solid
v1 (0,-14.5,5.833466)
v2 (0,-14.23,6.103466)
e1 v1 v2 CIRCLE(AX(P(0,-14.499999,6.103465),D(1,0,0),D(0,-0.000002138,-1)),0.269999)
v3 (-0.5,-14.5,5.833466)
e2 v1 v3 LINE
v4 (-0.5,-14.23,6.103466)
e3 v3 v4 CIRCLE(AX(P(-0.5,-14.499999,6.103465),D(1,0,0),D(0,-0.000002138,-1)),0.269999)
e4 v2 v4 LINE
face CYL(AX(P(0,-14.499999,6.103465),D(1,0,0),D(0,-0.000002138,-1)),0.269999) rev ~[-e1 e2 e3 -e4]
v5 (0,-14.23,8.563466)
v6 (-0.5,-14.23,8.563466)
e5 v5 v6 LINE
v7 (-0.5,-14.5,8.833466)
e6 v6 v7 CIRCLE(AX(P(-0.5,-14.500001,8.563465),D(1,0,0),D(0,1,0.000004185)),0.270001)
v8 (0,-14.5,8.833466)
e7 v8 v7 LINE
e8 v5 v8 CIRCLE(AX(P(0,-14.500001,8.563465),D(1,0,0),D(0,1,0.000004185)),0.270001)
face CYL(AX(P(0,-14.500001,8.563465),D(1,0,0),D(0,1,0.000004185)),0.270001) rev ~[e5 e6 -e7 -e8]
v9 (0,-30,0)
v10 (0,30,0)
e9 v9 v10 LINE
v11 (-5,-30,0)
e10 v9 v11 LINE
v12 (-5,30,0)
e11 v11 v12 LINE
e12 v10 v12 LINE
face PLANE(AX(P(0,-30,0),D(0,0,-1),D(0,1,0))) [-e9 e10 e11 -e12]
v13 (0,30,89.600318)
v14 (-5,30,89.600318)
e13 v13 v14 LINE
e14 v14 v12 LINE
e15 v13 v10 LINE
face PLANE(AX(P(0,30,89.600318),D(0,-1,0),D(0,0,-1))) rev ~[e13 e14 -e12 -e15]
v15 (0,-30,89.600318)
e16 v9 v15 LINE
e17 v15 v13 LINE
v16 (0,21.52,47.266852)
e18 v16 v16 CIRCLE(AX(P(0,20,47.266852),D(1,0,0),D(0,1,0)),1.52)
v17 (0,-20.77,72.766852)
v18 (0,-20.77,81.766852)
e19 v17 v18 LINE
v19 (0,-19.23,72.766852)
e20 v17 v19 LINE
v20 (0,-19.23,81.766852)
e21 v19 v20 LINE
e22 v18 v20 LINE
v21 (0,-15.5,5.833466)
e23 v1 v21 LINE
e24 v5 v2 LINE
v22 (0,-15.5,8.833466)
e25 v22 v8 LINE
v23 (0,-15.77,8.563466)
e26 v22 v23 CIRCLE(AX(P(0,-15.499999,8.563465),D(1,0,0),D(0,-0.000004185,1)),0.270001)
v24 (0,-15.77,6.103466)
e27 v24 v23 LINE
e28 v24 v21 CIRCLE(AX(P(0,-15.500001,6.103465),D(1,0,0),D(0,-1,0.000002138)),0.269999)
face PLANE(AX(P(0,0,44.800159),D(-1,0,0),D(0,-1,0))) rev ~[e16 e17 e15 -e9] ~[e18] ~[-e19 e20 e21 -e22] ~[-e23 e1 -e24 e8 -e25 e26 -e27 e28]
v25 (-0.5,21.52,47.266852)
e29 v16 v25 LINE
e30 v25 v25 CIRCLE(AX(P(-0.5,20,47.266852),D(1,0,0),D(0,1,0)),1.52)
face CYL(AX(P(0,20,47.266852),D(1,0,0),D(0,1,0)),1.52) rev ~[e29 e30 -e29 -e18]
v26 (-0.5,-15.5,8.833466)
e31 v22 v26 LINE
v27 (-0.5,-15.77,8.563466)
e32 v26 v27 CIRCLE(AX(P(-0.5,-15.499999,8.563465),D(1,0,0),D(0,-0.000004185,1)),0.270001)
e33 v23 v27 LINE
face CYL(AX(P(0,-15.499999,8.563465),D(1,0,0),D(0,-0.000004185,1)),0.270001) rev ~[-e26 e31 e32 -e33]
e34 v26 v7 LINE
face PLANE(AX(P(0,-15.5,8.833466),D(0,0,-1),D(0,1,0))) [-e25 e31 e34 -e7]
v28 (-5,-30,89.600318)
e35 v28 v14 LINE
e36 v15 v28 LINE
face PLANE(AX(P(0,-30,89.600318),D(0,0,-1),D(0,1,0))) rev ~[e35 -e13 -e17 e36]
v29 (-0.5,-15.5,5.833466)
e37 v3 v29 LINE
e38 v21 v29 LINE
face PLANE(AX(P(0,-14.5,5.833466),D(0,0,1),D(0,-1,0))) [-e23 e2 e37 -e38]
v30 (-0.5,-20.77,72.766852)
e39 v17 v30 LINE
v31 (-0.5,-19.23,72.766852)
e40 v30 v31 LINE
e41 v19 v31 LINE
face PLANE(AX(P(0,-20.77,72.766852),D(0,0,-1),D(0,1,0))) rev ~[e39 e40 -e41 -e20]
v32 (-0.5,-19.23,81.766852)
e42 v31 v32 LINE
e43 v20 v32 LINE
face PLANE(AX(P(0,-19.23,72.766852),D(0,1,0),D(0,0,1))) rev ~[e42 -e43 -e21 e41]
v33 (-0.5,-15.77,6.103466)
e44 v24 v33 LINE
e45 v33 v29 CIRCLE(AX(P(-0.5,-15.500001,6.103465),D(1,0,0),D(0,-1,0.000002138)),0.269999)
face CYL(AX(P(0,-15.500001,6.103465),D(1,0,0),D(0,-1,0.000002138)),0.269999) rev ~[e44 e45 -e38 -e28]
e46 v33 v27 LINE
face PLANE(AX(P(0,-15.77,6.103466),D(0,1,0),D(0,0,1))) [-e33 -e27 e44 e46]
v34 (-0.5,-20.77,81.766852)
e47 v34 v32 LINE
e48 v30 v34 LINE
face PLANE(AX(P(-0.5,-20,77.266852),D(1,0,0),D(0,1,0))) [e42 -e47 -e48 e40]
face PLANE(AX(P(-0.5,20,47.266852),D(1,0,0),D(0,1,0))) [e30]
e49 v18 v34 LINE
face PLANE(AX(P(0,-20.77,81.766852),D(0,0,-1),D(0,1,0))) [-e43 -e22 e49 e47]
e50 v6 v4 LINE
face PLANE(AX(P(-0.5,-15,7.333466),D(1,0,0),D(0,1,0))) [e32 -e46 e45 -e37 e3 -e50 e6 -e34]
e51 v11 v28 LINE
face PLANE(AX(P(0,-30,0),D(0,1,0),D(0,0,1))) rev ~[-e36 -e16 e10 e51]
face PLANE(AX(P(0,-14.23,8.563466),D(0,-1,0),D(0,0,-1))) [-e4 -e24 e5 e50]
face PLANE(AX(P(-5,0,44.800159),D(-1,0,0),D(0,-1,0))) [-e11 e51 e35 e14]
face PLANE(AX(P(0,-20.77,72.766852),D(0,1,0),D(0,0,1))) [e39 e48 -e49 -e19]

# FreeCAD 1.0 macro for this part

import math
import FreeCAD as App
import Part
import Sketcher

doc = App.newDocument("Part")
body = doc.addObject("PartDesign::Body", "Body")

sketch1 = body.newObject("Sketcher::SketchObject", "Sketch")
sketch1.AttachmentSupport = (doc.getObject("YZ_Plane"), [""])
sketch1.MapMode = "FlatFace"
sketch1.addGeometry(Part.LineSegment(App.Vector(-30, 0, 0), App.Vector(30, 0, 0)), False)
sketch1.addGeometry(Part.LineSegment(App.Vector(30, 0, 0), App.Vector(30, 90, 0)), False)
sketch1.addGeometry(Part.LineSegment(App.Vector(30, 90, 0), App.Vector(-30, 90, 0)), False)
sketch1.addGeometry(Part.LineSegment(App.Vector(-30, 90, 0), App.Vector(-30, 0, 0)), False)
sketch1.addConstraint(Sketcher.Constraint("Coincident", 0, 2, 1, 1))
sketch1.addConstraint(Sketcher.Constraint("Coincident", 1, 2, 2, 1))
sketch1.addConstraint(Sketcher.Constraint("Coincident", 2, 2, 3, 1))
sketch1.addConstraint(Sketcher.Constraint("Coincident", 3, 2, 0, 1))
sketch1.addConstraint(Sketcher.Constraint("Horizontal", 0))
sketch1.addConstraint(Sketcher.Constraint("Vertical", 1))
sketch1.addConstraint(Sketcher.Constraint("Horizontal", 2))
sketch1.addConstraint(Sketcher.Constraint("Vertical", 3))
sketch1.addConstraint(Sketcher.Constraint("Symmetric", 0, 2, 3, 2, -1, 1))
sketch1.addConstraint(Sketcher.Constraint("DistanceX", 0, 1, 0, 2, 60.0))
sketch1.addConstraint(Sketcher.Constraint("DistanceY", 1, 1, 1, 2, 89.600318))
pad1 = body.newObject("PartDesign::Pad", "Pad")
pad1.Profile = sketch1
pad1.Length = 5
pad1.Reversed = True

sketch2 = body.newObject("Sketcher::SketchObject", "Sketch001")
sketch2.AttachmentSupport = (doc.getObject("YZ_Plane"), [""])
sketch2.MapMode = "FlatFace"
sketch2.addGeometry(Part.Circle(App.Vector(20, 47.3, 0), App.Vector(0, 0, 1), 1.5), False)
sketch2.addConstraint(Sketcher.Constraint("Diameter", 0, 3.04))
sketch2.addConstraint(Sketcher.Constraint("DistanceX", -1, 1, 0, 3, 20.0))
sketch2.addConstraint(Sketcher.Constraint("DistanceY", -1, 1, 0, 3, 47.266852))
pocket1 = body.newObject("PartDesign::Pocket", "Pocket")
pocket1.Profile = sketch2
pocket1.Length = 0.5

sketch3 = body.newObject("Sketcher::SketchObject", "Sketch002")
sketch3.AttachmentSupport = (doc.getObject("YZ_Plane"), [""])
sketch3.MapMode = "FlatFace"
sketch3.addGeometry(Part.LineSegment(App.Vector(-20.8, 81.8, 0), App.Vector(-20.8, 72.8, 0)), False)
sketch3.addGeometry(Part.LineSegment(App.Vector(-20.8, 72.8, 0), App.Vector(-19.2, 72.8, 0)), False)
sketch3.addGeometry(Part.LineSegment(App.Vector(-19.2, 72.8, 0), App.Vector(-19.2, 81.8, 0)), False)
sketch3.addGeometry(Part.LineSegment(App.Vector(-19.2, 81.8, 0), App.Vector(-20.8, 81.8, 0)), False)
sketch3.addConstraint(Sketcher.Constraint("Coincident", 0, 2, 1, 1))
sketch3.addConstraint(Sketcher.Constraint("Coincident", 1, 2, 2, 1))
sketch3.addConstraint(Sketcher.Constraint("Coincident", 2, 2, 3, 1))
sketch3.addConstraint(Sketcher.Constraint("Coincident", 3, 2, 0, 1))
sketch3.addConstraint(Sketcher.Constraint("Vertical", 0))
sketch3.addConstraint(Sketcher.Constraint("Horizontal", 1))
sketch3.addConstraint(Sketcher.Constraint("Vertical", 2))
sketch3.addConstraint(Sketcher.Constraint("Horizontal", 3))
sketch3.addConstraint(Sketcher.Constraint("DistanceY", 0, 2, 0, 1, 9.0))
sketch3.addConstraint(Sketcher.Constraint("DistanceX", 1, 1, 1, 2, 1.54))
sketch3.addConstraint(Sketcher.Constraint("DistanceX", 0, 2, -1, 1, 20.77))
sketch3.addConstraint(Sketcher.Constraint("DistanceY", -1, 1, 0, 2, 72.766852))
pocket2 = body.newObject("PartDesign::Pocket", "Pocket001")
pocket2.Profile = sketch3
pocket2.Length = 0.5

sketch4 = body.newObject("Sketcher::SketchObject", "Sketch003")
sketch4.AttachmentSupport = (doc.getObject("YZ_Plane"), [""])
sketch4.MapMode = "FlatFace"
sketch4.addGeometry(Part.ArcOfCircle(Part.Circle(App.Vector(-15.5, 8.56, 0), App.Vector(0, 0, 1), 0.27), math.radians(90), math.radians(180)), False)
sketch4.addGeometry(Part.LineSegment(App.Vector(-15.77, 8.56, 0), App.Vector(-15.77, 6.1, 0)), False)
sketch4.addGeometry(Part.ArcOfCircle(Part.Circle(App.Vector(-15.5, 6.1, 0), App.Vector(0, 0, 1), 0.27), math.radians(180), math.radians(270)), False)
sketch4.addGeometry(Part.LineSegment(App.Vector(-15.5, 5.83, 0), App.Vector(-14.5, 5.83, 0)), False)
sketch4.addGeometry(Part.ArcOfCircle(Part.Circle(App.Vector(-14.5, 6.1, 0), App.Vector(0, 0, 1), 0.27), math.radians(-90), math.radians(0)), False)
sketch4.addGeometry(Part.LineSegment(App.Vector(-14.23, 6.1, 0), App.Vector(-14.23, 8.56, 0)), False)
sketch4.addGeometry(Part.ArcOfCircle(Part.Circle(App.Vector(-14.5, 8.56, 0), App.Vector(0, 0, 1), 0.27), math.radians(0), math.radians(90)), False)
sketch4.addGeometry(Part.LineSegment(App.Vector(-14.5, 8.83, 0), App.Vector(-15.5, 8.83, 0)), False)
sketch4.addConstraint(Sketcher.Constraint("Coincident", 0, 2, 1, 1))
sketch4.addConstraint(Sketcher.Constraint("Coincident", 1, 2, 2, 1))
sketch4.addConstraint(Sketcher.Constraint("Coincident", 2, 2, 3, 1))
sketch4.addConstraint(Sketcher.Constraint("Coincident", 3, 2, 4, 1))
sketch4.addConstraint(Sketcher.Constraint("Coincident", 4, 2, 5, 1))
sketch4.addConstraint(Sketcher.Constraint("Coincident", 5, 2, 6, 1))
sketch4.addConstraint(Sketcher.Constraint("Coincident", 6, 2, 7, 1))
sketch4.addConstraint(Sketcher.Constraint("Coincident", 7, 2, 0, 1))
sketch4.addConstraint(Sketcher.Constraint("Vertical", 1))
sketch4.addConstraint(Sketcher.Constraint("Horizontal", 3))
sketch4.addConstraint(Sketcher.Constraint("Vertical", 5))
sketch4.addConstraint(Sketcher.Constraint("Horizontal", 7))
sketch4.addConstraint(Sketcher.Constraint("Equal", 0, 2))
sketch4.addConstraint(Sketcher.Constraint("Equal", 2, 4))
sketch4.addConstraint(Sketcher.Constraint("Equal", 4, 6))
sketch4.addConstraint(Sketcher.Constraint("Horizontal", 6, 3, 0, 2))
sketch4.addConstraint(Sketcher.Constraint("Horizontal", 4, 3, 1, 2))
sketch4.addConstraint(Sketcher.Constraint("Horizontal", 1, 2, 4, 2))
sketch4.addConstraint(Sketcher.Constraint("Horizontal", 0, 2, 5, 2))
sketch4.addConstraint(Sketcher.Constraint("Vertical", 0, 3, 2, 2))
sketch4.addConstraint(Sketcher.Constraint("Vertical", 6, 3, 3, 2))
sketch4.addConstraint(Sketcher.Constraint("Vertical", 3, 2, 6, 2))
sketch4.addConstraint(Sketcher.Constraint("Vertical", 2, 2, 7, 2))
sketch4.addConstraint(Sketcher.Constraint("DistanceX", 3, 1, 3, 2, 1.0))
sketch4.addConstraint(Sketcher.Constraint("Radius", 0, 0.270001))
sketch4.addConstraint(Sketcher.Constraint("DistanceY", 1, 2, 1, 1, 2.46))
sketch4.addConstraint(Sketcher.Constraint("DistanceX", 0, 3, -1, 1, 15.499999))
sketch4.addConstraint(Sketcher.Constraint("DistanceY", -1, 1, 0, 3, 8.563465))
pocket3 = body.newObject("PartDesign::Pocket", "Pocket002")
pocket3.Profile = sketch4
pocket3.Length = 0.5

doc.recompute()
